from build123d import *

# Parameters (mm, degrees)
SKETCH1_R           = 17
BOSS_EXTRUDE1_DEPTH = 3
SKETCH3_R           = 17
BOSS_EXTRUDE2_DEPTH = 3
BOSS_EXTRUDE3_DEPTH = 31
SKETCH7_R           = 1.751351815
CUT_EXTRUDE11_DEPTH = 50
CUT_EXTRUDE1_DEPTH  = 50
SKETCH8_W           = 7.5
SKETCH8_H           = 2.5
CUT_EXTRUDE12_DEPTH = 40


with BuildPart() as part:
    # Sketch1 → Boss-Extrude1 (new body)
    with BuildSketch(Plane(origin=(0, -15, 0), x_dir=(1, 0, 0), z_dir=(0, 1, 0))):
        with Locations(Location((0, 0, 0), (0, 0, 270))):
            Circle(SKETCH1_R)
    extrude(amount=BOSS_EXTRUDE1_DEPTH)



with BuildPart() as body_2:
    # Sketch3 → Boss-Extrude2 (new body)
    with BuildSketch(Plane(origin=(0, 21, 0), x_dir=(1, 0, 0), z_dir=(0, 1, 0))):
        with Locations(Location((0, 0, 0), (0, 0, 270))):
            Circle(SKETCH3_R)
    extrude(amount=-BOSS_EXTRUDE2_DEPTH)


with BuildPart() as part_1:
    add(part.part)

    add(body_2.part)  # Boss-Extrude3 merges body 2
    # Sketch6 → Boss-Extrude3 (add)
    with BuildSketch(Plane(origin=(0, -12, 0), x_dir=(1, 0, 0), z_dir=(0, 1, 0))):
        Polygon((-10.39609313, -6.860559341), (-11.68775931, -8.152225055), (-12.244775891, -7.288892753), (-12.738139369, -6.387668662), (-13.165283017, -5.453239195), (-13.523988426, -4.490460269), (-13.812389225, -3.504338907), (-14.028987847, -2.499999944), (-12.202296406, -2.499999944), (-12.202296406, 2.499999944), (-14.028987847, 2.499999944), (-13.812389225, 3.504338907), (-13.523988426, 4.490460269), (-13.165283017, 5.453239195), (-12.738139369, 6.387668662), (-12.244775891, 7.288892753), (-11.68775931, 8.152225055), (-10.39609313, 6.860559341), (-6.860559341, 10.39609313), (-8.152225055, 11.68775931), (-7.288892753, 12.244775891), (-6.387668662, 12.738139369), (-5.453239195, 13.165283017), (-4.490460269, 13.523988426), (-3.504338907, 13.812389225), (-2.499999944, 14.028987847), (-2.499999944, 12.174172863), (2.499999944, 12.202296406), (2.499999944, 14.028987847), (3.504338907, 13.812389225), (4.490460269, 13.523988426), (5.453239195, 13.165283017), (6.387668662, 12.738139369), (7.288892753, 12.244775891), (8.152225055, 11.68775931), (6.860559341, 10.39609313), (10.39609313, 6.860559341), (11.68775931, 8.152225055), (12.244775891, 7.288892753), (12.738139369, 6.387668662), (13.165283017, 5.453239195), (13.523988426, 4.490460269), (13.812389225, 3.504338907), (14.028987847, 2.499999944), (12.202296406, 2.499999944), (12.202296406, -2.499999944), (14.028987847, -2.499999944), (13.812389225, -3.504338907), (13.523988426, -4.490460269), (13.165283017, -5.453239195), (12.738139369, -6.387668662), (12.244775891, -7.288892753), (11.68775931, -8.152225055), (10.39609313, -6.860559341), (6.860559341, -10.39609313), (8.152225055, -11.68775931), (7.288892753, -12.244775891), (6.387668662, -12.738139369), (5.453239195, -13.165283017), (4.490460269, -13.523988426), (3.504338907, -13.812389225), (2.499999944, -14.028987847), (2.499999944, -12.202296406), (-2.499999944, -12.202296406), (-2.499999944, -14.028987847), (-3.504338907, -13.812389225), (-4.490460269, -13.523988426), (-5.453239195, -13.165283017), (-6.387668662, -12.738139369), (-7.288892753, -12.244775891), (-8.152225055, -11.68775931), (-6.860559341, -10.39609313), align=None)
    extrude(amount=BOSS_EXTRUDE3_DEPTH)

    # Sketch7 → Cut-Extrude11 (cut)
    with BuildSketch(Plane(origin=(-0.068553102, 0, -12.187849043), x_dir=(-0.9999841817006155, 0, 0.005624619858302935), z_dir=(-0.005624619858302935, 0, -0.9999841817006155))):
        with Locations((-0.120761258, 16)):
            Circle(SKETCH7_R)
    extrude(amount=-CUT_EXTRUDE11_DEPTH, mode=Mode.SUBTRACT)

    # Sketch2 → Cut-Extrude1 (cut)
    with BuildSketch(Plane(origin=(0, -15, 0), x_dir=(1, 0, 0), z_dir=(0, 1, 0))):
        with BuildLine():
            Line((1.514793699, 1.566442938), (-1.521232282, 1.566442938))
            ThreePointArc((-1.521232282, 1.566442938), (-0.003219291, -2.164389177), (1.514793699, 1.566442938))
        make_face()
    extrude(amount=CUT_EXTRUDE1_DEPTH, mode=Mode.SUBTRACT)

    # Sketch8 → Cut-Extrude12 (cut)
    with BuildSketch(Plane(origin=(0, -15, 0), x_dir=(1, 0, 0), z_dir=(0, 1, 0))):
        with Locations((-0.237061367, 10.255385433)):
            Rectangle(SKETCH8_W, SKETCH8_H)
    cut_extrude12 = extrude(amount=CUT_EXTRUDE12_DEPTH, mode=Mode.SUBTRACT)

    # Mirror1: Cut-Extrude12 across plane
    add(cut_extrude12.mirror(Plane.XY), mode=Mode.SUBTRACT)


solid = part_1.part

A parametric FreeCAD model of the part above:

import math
import FreeCAD as App
import Part
import Sketcher
from FreeCAD import Vector
Q = App.Units.Quantity


def add_polygon(sketch, points):
    """Adds a closed chain of lines whose ends are joined by coincident constraints."""
    first, n = sketch.GeometryCount, len(points)
    for a, b in zip(points, points[1:] + points[:1]):
        sketch.addGeometry(Part.LineSegment(App.Vector(*a, 0), App.Vector(*b, 0)), False)
    for i in range(n):
        sketch.addConstraint(Sketcher.Constraint("Coincident", first + i, 2, first + (i + 1) % n, 1))

doc = App.newDocument("Part")
body = doc.addObject("PartDesign::Body", "Body")

# Sketch on XZ plane
sketch1 = body.newObject("Sketcher::SketchObject", "Sketch")
sketch1.AttachmentSupport = (doc.getObject("XZ_Plane"), [""])
sketch1.MapMode = "FlatFace"
sketch1.AttachmentOffset = App.Placement(Vector(0, 0, 15), App.Rotation())
sketch1.addGeometry(Part.Circle(Vector(0, 0, 0), Vector(0, 0, 1), 17), False)
sketch1.addConstraint([
    Sketcher.Constraint("Coincident", 0, 3, -1, 1),
    Sketcher.Constraint("Diameter", 0, Q("34 mm")),
])
pad1 = body.newObject("PartDesign::Pad", "Pad")
pad1.Profile = sketch1
pad1.Length = 3
pad1.Reversed = True
body2 = doc.addObject("PartDesign::Body", "Body001")

# Sketch on XZ plane
sketch2 = body2.newObject("Sketcher::SketchObject", "Sketch001")
sketch2.AttachmentSupport = (doc.getObject("XZ_Plane001"), [""])
sketch2.MapMode = "FlatFace"
sketch2.AttachmentOffset = App.Placement(Vector(0, 0, -21), App.Rotation())
sketch2.addGeometry(Part.Circle(Vector(0, 0, 0), Vector(0, 0, 1), 17), False)
sketch2.addConstraint([
    Sketcher.Constraint("Coincident", 0, 3, -1, 1),
    Sketcher.Constraint("Diameter", 0, Q("34 mm")),
])
pad2 = body2.newObject("PartDesign::Pad", "Pad001")
pad2.Profile = sketch2
pad2.Length = 3
body.AllowCompound = True
doc.recompute()

boolean = body.newObject("PartDesign::Boolean", "Boolean")
boolean.Type = "Fuse"
boolean.addObjects([body2])

# Sketch on XZ plane
sketch3 = body.newObject("Sketcher::SketchObject", "Sketch002")
sketch3.AttachmentSupport = (doc.getObject("XZ_Plane"), [""])
sketch3.MapMode = "FlatFace"
sketch3.AttachmentOffset = App.Placement(Vector(0, 0, 12), App.Rotation())
add_polygon(sketch3, [(-11.687759, 8.152225), (-10.396093, 6.860559), (-6.860559, 10.396093), (-8.152225, 11.687759), (-7.288893, 12.244776), (-6.387669, 12.738139), (-5.453239, 13.165283), (-4.49046, 13.523988), (-3.504339, 13.812389), (-2.5, 14.028988), (-2.5, 12.202296), (2.5, 12.202296), (2.5, 14.028988), (3.504339, 13.812389), (4.49046, 13.523988), (5.453239, 13.165283), (6.387669, 12.738139), (7.288893, 12.244776), (8.152225, 11.687759), (6.860559, 10.396093), (10.396093, 6.860559), (11.687759, 8.152225), (12.244776, 7.288893), (12.738139, 6.387669), (13.165283, 5.453239), (13.523988, 4.49046), (13.812389, 3.504339), (14.028988, 2.5), (12.202296, 2.5), (12.202296, -2.5), (14.028988, -2.5), (13.812389, -3.504339), (13.523988, -4.49046), (13.165283, -5.453239), (12.738139, -6.387669), (12.244776, -7.288893), (11.687759, -8.152225), (10.396093, -6.860559), (6.860559, -10.396093), (8.152225, -11.687759), (7.288893, -12.244776), (6.387669, -12.738139), (5.453239, -13.165283), (4.49046, -13.523988), (3.504339, -13.812389), (2.5, -14.028988), (2.5, -12.202296), (-2.5, -12.174173), (-2.5, -14.028988), (-3.504339, -13.812389), (-4.49046, -13.523988), (-5.453239, -13.165283), (-6.387669, -12.738139), (-7.288893, -12.244776), (-8.152225, -11.687759), (-6.860559, -10.396093), (-10.396093, -6.860559), (-11.687759, -8.152225), (-12.244776, -7.288893), (-12.738139, -6.387669), (-13.165283, -5.453239), (-13.523988, -4.49046), (-13.812389, -3.504339), (-14.028988, -2.5), (-12.202296, -2.5), (-12.202296, 2.5), (-14.028988, 2.5), (-13.812389, 3.504339), (-13.523988, 4.49046), (-13.165283, 5.453239), (-12.738139, 6.387669), (-12.244776, 7.288893)])  # lines 0-71
sketch3.addConstraint([
    Sketcher.Constraint("Vertical", 9),
    Sketcher.Constraint("Horizontal", 10),
    Sketcher.Constraint("Vertical", 11),
    Sketcher.Constraint("Horizontal", 27),
    Sketcher.Constraint("Vertical", 28),
    Sketcher.Constraint("Horizontal", 29),
    Sketcher.Constraint("Vertical", 45),
    Sketcher.Constraint("Vertical", 47),
    Sketcher.Constraint("Horizontal", 63),
    Sketcher.Constraint("Vertical", 64),
    Sketcher.Constraint("Horizontal", 65),
    Sketcher.Constraint("Symmetric", 0, 2, 36, 2, -1, 1),
    Sketcher.Constraint("Symmetric", 1, 2, 37, 2, -1, 1),
    Sketcher.Constraint("Symmetric", 2, 2, 38, 2, -1, 1),
    Sketcher.Constraint("Symmetric", 3, 2, 39, 2, -1, 1),
    Sketcher.Constraint("Symmetric", 4, 2, 40, 2, -1, 1),
    Sketcher.Constraint("Symmetric", 5, 2, 41, 2, -1, 1),
    Sketcher.Constraint("Symmetric", 6, 2, 42, 2, -1, 1),
    Sketcher.Constraint("Symmetric", 7, 2, 43, 2, -1, 1),
    Sketcher.Constraint("Symmetric", 8, 2, 44, 2, -1, 1),
    Sketcher.Constraint("Symmetric", 11, 2, 47, 2, -1, 1),
    Sketcher.Constraint("Symmetric", 12, 2, 48, 2, -1, 1),
    Sketcher.Constraint("Symmetric", 13, 2, 49, 2, -1, 1),
    Sketcher.Constraint("Symmetric", 14, 2, 50, 2, -1, 1),
    Sketcher.Constraint("Symmetric", 15, 2, 51, 2, -1, 1),
    Sketcher.Constraint("Symmetric", 16, 2, 52, 2, -1, 1),
    Sketcher.Constraint("Symmetric", 17, 2, 53, 2, -1, 1),
    Sketcher.Constraint("Symmetric", 18, 2, 54, 2, -1, 1),
    Sketcher.Constraint("Symmetric", 19, 2, 55, 2, -1, 1),
    Sketcher.Constraint("Symmetric", 20, 2, 56, 2, -1, 1),
    Sketcher.Constraint("Symmetric", 21, 2, 57, 2, -1, 1),
    Sketcher.Constraint("Symmetric", 22, 2, 58, 2, -1, 1),
    Sketcher.Constraint("Symmetric", 23, 2, 59, 2, -1, 1),
    Sketcher.Constraint("Symmetric", 24, 2, 60, 2, -1, 1),
    Sketcher.Constraint("Symmetric", 25, 2, 61, 2, -1, 1),
    Sketcher.Constraint("Symmetric", 26, 2, 62, 2, -1, 1),
    Sketcher.Constraint("Symmetric", 28, 2, 64, 2, -1, 1),
    Sketcher.Constraint("Symmetric", 30, 2, 66, 2, -1, 1),
    Sketcher.Constraint("Symmetric", 31, 2, 67, 2, -1, 1),
    Sketcher.Constraint("Symmetric", 32, 2, 68, 2, -1, 1),
    Sketcher.Constraint("Symmetric", 33, 2, 69, 2, -1, 1),
    Sketcher.Constraint("Symmetric", 34, 2, 70, 2, -1, 1),
    Sketcher.Constraint("Symmetric", 35, 2, 71, 2, -1, 1),
    Sketcher.Constraint("Symmetric", 8, 2, 11, 2, -2),
    Sketcher.Constraint("Symmetric", 7, 2, 12, 2, -2),
    Sketcher.Constraint("Symmetric", 6, 2, 13, 2, -2),
    Sketcher.Constraint("Symmetric", 5, 2, 14, 2, -2),
    Sketcher.Constraint("Symmetric", 4, 2, 15, 2, -2),
    Sketcher.Constraint("Symmetric", 3, 2, 16, 2, -2),
    Sketcher.Constraint("Symmetric", 2, 2, 17, 2, -2),
    Sketcher.Constraint("Symmetric", 1, 2, 18, 2, -2),
    Sketcher.Constraint("Symmetric", 0, 2, 19, 2, -2),
    Sketcher.Constraint("Symmetric", 35, 2, 56, 2, -2),
    Sketcher.Constraint("Symmetric", 34, 2, 57, 2, -2),
    Sketcher.Constraint("Symmetric", 33, 2, 58, 2, -2),
    Sketcher.Constraint("Symmetric", 32, 2, 59, 2, -2),
    Sketcher.Constraint("Symmetric", 31, 2, 60, 2, -2),
    Sketcher.Constraint("Symmetric", 30, 2, 61, 2, -2),
    Sketcher.Constraint("Symmetric", 29, 2, 62, 2, -2),
    Sketcher.Constraint("Perpendicular", 0, 1),
    Sketcher.Constraint("Perpendicular", 1, 2),
    Sketcher.Constraint("Perpendicular", 2, 18),
    Sketcher.Constraint("Perpendicular", 3, 21),
    Sketcher.Constraint("Perpendicular", 4, 22),
    Sketcher.Constraint("Perpendicular", 5, 23),
    Sketcher.Constraint("Perpendicular", 6, 24),
    Sketcher.Constraint("Perpendicular", 7, 25),
    Sketcher.Constraint("Perpendicular", 8, 26),
    Sketcher.Constraint("Perpendicular", 48, 66),
    Sketcher.Constraint("Equal", 65, 9),
    Sketcher.Constraint("Equal", 10, 28),
    Sketcher.Constraint("Equal", 11, 45),
    Sketcher.Constraint("Equal", 0, 2),
    Sketcher.Constraint("Equal", 3, 4),
    Sketcher.Constraint("Equal", 4, 5),
    Sketcher.Constraint("Equal", 5, 6),
    Sketcher.Constraint("Equal", 6, 7),
    Sketcher.Constraint("Equal", 7, 8),
    Sketcher.Constraint("Equal", 17, 21),
    Sketcher.Constraint("Equal", 21, 22),
    Sketcher.Constraint("Equal", 22, 23),
    Sketcher.Constraint("Equal", 23, 24),
    Sketcher.Constraint("Equal", 24, 25),
    Sketcher.Constraint("Equal", 25, 26),
    Sketcher.Constraint("DistanceX", 10, 1, 10, 2, Q("5 mm")),
    Sketcher.Constraint("Distance", 1, Q("5 mm")),
    Sketcher.Constraint("DistanceX", 27, 2, 27, 1, Q("1.826691 mm")),
    Sketcher.Constraint("Distance", 0, Q("1.826692 mm")),
    Sketcher.Constraint("Distance", 3, Q("1.027429 mm")),
    Sketcher.Constraint("Distance", 46, Q("5.000079 mm")),
    Sketcher.Constraint("DistanceY", -1, 1, 0, 2, Q("6.860559 mm")),
    Sketcher.Constraint("DistanceX", 4, 2, -1, 1, Q("6.387669 mm")),
    Sketcher.Constraint("DistanceY", -1, 1, 4, 2, Q("12.738139 mm")),
    Sketcher.Constraint("DistanceX", 5, 2, -1, 1, Q("5.453239 mm")),
    Sketcher.Constraint("DistanceX", 6, 2, -1, 1, Q("4.49046 mm")),
    Sketcher.Constraint("DistanceX", 7, 2, -1, 1, Q("3.504339 mm")),
])
pad3 = body.newObject("PartDesign::Pad", "Pad002")
pad3.Profile = sketch3
pad3.Length = 31
pad3.Reversed = True

# Sketch on an angled plane
sketch4 = body.newObject("Sketcher::SketchObject", "Sketch003")
sketch4.Placement = App.Placement(Vector(-0.068553, 0, -12.187849), App.Rotation(Vector(-0.999984182, 0, 0.00562462), Vector(0, 1.000000001, 0), Vector(-0.00562462, 0, -0.999984182), "ZXY"))
sketch4.addGeometry(Part.Circle(Vector(-0.120761, 16, 0), Vector(0, 0, 1), 1.751352), False)
sketch4.addConstraint([
    Sketcher.Constraint("DistanceY", -1, 1, 0, 3, Q("16 mm")),
    Sketcher.Constraint("Diameter", 0, Q("3.502704 mm")),
    Sketcher.Constraint("DistanceX", 0, 3, -1, 1, Q("0.120761 mm")),
])
pocket1 = body.newObject("PartDesign::Pocket", "Pocket")
pocket1.Profile = sketch4
pocket1.Length = 50

# Sketch on XZ plane
sketch5 = body.newObject("Sketcher::SketchObject", "Sketch004")
sketch5.AttachmentSupport = (doc.getObject("XZ_Plane"), [""])
sketch5.MapMode = "FlatFace"
sketch5.AttachmentOffset = App.Placement(Vector(0, 0, 15), App.Rotation())
sketch5.addGeometry([
    Part.LineSegment(Vector(1.514794, -1.566443, 0), Vector(-1.521232, -1.566443, 0)),
    Part.ArcOfCircle(Part.Circle(Vector(-0.003219, -0.009854, 0), Vector(0, 0, 1), 2.174243), math.radians(-45.718834), math.radians(225.718834)),
], False)
sketch5.addConstraint([
    Sketcher.Constraint("Coincident", 0, 1, 1, 1),
    Sketcher.Constraint("Coincident", 1, 2, 0, 2),
    Sketcher.Constraint("Horizontal", 0),
    Sketcher.Constraint("Radius", 1, Q("2.174243 mm")),
    Sketcher.Constraint("DistanceX", 0, 2, 0, 1, Q("3.036026 mm")),
    Sketcher.Constraint("DistanceX", 1, 3, -1, 1, Q("0.003219 mm")),
    Sketcher.Constraint("DistanceY", 1, 3, -1, 1, Q("0.009854 mm")),
])
pocket2 = body.newObject("PartDesign::Pocket", "Pocket001")
pocket2.Profile = sketch5
pocket2.Length = 50

# Sketch on XZ plane
sketch6 = body.newObject("Sketcher::SketchObject", "Sketch005")
sketch6.AttachmentSupport = (doc.getObject("XZ_Plane"), [""])
sketch6.MapMode = "FlatFace"
sketch6.AttachmentOffset = App.Placement(Vector(0, 0, 15), App.Rotation())
add_polygon(sketch6, [(-3.987061, -11.505385), (-3.987061, -9.005385), (3.512939, -9.005385), (3.512939, -11.505385)])  # lines 0-3
sketch6.addConstraint([
    Sketcher.Constraint("Vertical", 0),
    Sketcher.Constraint("Horizontal", 1),
    Sketcher.Constraint("Vertical", 2),
    Sketcher.Constraint("Horizontal", 3),
    Sketcher.Constraint("DistanceX", 1, 1, 1, 2, Q("7.5 mm")),
    Sketcher.Constraint("DistanceY", 0, 1, 0, 2, Q("2.5 mm")),
    Sketcher.Constraint("DistanceX", 0, 2, -1, 1, Q("3.987061 mm")),
    Sketcher.Constraint("DistanceY", 0, 2, -1, 1, Q("9.005385 mm")),
])
pocket3 = body.newObject("PartDesign::Pocket", "Pocket002")
pocket3.Profile = sketch6
pocket3.Length = 40
doc.recompute()

mirrored = body.newObject("PartDesign::Mirrored", "Mirrored")
mirrored.Originals = [pocket3]
mirrored.MirrorPlane = (doc.getObject("XY_Plane"), [""])
body.Tip = mirrored

doc.recompute()
